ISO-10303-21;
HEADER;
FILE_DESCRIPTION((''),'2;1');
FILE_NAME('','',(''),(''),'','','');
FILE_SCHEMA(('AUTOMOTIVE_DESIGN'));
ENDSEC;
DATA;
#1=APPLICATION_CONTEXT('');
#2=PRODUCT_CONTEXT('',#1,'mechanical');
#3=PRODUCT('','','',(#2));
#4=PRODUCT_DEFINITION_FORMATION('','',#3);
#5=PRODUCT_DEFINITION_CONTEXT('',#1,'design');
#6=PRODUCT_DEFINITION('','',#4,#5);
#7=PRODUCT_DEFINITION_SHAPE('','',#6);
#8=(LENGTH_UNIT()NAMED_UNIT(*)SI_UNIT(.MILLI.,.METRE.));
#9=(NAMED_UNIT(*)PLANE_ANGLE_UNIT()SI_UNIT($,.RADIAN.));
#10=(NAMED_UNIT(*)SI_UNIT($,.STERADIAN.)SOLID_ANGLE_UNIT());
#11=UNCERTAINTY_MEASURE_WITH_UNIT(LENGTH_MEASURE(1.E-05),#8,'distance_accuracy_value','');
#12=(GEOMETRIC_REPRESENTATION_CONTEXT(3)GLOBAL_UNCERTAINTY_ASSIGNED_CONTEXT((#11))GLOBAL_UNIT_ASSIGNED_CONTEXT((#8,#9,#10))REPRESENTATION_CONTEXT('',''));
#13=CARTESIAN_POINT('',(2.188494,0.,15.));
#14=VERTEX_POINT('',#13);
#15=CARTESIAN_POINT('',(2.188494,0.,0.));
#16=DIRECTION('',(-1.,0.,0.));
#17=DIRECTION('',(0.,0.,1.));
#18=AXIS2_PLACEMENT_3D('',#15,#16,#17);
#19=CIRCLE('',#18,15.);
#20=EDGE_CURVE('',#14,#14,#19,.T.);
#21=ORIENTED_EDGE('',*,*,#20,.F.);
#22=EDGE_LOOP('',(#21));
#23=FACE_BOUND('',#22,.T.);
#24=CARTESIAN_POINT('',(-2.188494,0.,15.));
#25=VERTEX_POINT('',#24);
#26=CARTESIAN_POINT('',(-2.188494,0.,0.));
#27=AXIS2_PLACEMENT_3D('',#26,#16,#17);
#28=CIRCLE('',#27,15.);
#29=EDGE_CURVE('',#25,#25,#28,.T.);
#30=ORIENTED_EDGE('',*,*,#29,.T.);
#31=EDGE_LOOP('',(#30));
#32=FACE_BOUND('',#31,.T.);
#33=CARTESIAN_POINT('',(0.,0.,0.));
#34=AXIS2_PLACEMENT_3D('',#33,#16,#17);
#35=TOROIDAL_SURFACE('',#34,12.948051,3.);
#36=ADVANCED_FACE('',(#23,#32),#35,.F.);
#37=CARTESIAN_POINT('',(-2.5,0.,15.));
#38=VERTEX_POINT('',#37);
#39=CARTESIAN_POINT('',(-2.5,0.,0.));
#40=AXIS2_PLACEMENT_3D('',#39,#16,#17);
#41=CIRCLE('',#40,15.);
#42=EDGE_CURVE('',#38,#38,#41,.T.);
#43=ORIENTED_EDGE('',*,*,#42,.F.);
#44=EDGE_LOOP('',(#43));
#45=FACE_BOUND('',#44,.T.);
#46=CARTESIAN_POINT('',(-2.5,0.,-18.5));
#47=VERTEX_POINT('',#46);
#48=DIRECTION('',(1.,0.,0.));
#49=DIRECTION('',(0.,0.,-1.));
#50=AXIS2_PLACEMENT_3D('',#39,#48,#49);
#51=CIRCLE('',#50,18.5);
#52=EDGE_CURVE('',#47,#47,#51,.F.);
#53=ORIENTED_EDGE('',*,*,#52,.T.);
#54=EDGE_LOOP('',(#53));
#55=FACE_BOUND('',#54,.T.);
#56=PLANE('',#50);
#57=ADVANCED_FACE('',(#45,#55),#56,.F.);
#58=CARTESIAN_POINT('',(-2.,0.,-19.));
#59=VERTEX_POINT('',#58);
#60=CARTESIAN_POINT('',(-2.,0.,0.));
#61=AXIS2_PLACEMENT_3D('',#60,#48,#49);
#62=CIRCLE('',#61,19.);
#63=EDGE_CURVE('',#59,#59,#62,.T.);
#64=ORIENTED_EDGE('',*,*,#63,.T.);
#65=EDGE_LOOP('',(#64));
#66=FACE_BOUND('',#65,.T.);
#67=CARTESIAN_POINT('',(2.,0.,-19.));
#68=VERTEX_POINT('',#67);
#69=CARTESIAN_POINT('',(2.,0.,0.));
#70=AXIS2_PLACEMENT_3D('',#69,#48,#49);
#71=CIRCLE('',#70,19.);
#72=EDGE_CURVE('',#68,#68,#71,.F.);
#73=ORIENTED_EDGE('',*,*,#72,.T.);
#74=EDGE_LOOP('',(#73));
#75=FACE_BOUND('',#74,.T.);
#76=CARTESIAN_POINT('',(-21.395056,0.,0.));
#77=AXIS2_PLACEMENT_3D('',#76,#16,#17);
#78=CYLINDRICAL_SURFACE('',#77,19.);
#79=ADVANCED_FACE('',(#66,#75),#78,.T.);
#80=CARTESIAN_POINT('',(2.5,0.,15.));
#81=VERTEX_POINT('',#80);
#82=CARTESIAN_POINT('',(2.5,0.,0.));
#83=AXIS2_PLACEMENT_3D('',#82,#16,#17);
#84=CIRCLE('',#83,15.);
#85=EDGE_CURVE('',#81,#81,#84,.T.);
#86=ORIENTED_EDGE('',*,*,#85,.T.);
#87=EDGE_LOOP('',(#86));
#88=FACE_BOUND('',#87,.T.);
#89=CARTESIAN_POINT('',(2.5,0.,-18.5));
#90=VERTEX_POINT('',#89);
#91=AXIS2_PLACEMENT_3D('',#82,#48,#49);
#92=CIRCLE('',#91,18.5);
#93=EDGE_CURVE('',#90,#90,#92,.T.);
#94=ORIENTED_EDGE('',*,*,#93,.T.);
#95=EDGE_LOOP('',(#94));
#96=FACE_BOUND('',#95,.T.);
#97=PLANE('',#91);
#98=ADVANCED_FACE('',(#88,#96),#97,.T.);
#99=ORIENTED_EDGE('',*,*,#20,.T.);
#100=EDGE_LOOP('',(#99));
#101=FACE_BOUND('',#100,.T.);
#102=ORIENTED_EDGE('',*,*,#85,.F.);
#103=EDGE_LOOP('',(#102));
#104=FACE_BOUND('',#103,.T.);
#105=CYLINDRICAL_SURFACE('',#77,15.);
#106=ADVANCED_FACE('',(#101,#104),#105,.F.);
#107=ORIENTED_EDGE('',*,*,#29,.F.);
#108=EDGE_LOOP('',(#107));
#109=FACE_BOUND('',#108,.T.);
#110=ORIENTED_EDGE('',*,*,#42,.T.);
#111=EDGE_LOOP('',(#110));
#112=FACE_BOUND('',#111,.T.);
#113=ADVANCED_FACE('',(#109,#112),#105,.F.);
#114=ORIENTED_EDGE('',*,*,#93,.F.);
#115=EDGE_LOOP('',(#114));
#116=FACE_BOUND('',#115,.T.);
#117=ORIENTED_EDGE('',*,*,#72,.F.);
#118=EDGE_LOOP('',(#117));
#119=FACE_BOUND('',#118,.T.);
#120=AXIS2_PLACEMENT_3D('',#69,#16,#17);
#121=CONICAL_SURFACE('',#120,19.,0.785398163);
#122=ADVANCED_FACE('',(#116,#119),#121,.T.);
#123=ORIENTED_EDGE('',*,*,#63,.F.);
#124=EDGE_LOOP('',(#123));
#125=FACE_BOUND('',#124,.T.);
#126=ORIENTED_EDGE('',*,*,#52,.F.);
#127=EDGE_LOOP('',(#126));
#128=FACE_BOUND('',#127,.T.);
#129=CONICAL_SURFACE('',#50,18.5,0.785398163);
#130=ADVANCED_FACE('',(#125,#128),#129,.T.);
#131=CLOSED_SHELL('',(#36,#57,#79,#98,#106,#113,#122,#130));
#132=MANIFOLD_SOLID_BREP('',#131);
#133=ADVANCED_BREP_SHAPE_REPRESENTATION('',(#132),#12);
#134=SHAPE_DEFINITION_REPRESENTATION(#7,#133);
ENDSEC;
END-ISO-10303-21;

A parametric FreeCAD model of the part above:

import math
import FreeCAD as App
import Part
import Sketcher
from FreeCAD import Vector


def edges_at(feature, points):
    """Names of the edges that pass closest to the given points."""
    edges = feature.Shape.Edges
    near = lambda p: min(range(len(edges)), key=lambda i: edges[i].distToShape(Part.Vertex(*p))[0])
    return sorted({f"Edge{near(p) + 1}" for p in points})

doc = App.newDocument("Part")
body = doc.addObject("PartDesign::Body", "Body")

sketch1 = doc.addObject("Sketcher::SketchObject", "Sketch")
body.addObject(sketch1)
sketch1.AttachmentSupport = (doc.XY_Plane, [""])
sketch1.MapMode = "FlatFace"
sketch1.addGeometry([
    Part.LineSegment(Vector(-2.5, 15, 0), Vector(-2.19, 15, 0)),
    Part.ArcOfCircle(Part.Circle(Vector(0, 12.95, 0), Vector(0, 0, 1), 3), math.radians(43), math.radians(137)),
    Part.LineSegment(Vector(2.19, 15, 0), Vector(2.5, 15, 0)),
    Part.LineSegment(Vector(2.5, 15, 0), Vector(2.5, 19, 0)),
    Part.LineSegment(Vector(2.5, 19, 0), Vector(-2.5, 19, 0)),
    Part.LineSegment(Vector(-2.5, 19, 0), Vector(-2.5, 15, 0)),
], False)
sketch1.addConstraint([
    Sketcher.Constraint("Coincident", 0, 2, 1, 2),
    Sketcher.Constraint("Coincident", 1, 1, 2, 1),
    Sketcher.Constraint("Coincident", 2, 2, 3, 1),
    Sketcher.Constraint("Coincident", 3, 2, 4, 1),
    Sketcher.Constraint("Coincident", 4, 2, 5, 1),
    Sketcher.Constraint("Coincident", 5, 2, 0, 1),
    Sketcher.Constraint("Horizontal", 0),
    Sketcher.Constraint("Horizontal", 2),
    Sketcher.Constraint("Vertical", 3),
    Sketcher.Constraint("Horizontal", 4),
    Sketcher.Constraint("Vertical", 5),
    Sketcher.Constraint("Symmetric", 0, 2, 1, 1, -2),
    Sketcher.Constraint("Equal", 0, 2),
    Sketcher.Constraint("Radius", 1, 3.0),
    Sketcher.Constraint("DistanceX", 4, 2, 4, 1, 5.0),
    Sketcher.Constraint("DistanceY", 3, 1, 3, 2, 4.0),
    Sketcher.Constraint("DistanceY", -1, 1, 0, 2, 15.0),
    Sketcher.Constraint("DistanceX", 0, 1, 0, 2, 0.311506),
])
revolution = doc.addObject("PartDesign::Revolution", "Revolution")
body.addObject(revolution)
revolution.Profile = sketch1
revolution.ReferenceAxis = (sketch1, ["H_Axis"])
revolution.Angle = 360
doc.recompute()

chamfer = doc.addObject("PartDesign::Chamfer", "Chamfer")
body.addObject(chamfer)
chamfer.Base = (revolution, edges_at(revolution, [(-2.5, -19, 0), (2.5, -19, 0)]))
chamfer.Size = 0.5

doc.recompute()
